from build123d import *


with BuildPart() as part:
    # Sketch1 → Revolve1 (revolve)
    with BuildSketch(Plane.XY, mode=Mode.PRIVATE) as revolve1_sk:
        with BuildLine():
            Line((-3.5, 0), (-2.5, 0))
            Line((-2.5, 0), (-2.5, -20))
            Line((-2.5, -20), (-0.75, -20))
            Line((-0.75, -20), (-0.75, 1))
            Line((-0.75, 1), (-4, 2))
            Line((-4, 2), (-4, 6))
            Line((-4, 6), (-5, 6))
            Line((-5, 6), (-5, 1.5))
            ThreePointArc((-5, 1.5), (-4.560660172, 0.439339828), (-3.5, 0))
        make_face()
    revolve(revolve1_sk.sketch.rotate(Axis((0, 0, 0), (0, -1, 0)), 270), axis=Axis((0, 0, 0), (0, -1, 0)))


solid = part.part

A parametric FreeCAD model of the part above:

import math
import FreeCAD as App
import Part
import Sketcher

V = App.Vector
Q = App.Units.Quantity

doc = App.newDocument("Part")
body = doc.addObject("PartDesign::Body", "Body")

# Sketch on XY plane
sketch1 = body.newObject("Sketcher::SketchObject", "Sketch")
sketch1.AttachmentSupport = (doc.getObject("XY_Plane"), [""])
sketch1.MapMode = "FlatFace"
sketch1.addGeometry([
    Part.LineSegment(V(-3.5, 0, 0), V(-2.5, 0, 0)),  # 0
    Part.LineSegment(V(-2.5, 0, 0), V(-2.5, -20, 0)),  # 1
    Part.LineSegment(V(-2.5, -20, 0), V(-0.8, -20, 0)),  # 2
    Part.LineSegment(V(-0.8, -20, 0), V(-0.8, 1, 0)),  # 3
    Part.LineSegment(V(-0.8, 1, 0), V(-4, 2, 0)),  # 4
    Part.LineSegment(V(-4, 2, 0), V(-4, 6, 0)),  # 5
    Part.LineSegment(V(-4, 6, 0), V(-5, 6, 0)),  # 6
    Part.LineSegment(V(-5, 6, 0), V(-5, 1.5, 0)),  # 7
    Part.ArcOfCircle(Part.Circle(V(-3.5, 1.5, 0), V(0, 0, 1), 1.5), math.radians(180), math.radians(270)),  # 8
], False)
sketch1.addConstraint([
    Sketcher.Constraint("Coincident", 0, 2, 1, 1),
    Sketcher.Constraint("Coincident", 1, 2, 2, 1),
    Sketcher.Constraint("Coincident", 2, 2, 3, 1),
    Sketcher.Constraint("Coincident", 3, 2, 4, 1),
    Sketcher.Constraint("Coincident", 4, 2, 5, 1),
    Sketcher.Constraint("Coincident", 5, 2, 6, 1),
    Sketcher.Constraint("Coincident", 6, 2, 7, 1),
    Sketcher.Constraint("Tangent", 7, 2, 8, 1),
    Sketcher.Constraint("Tangent", 8, 2, 0, 1),
    Sketcher.Constraint("Horizontal", 0),
    Sketcher.Constraint("Vertical", 1),
    Sketcher.Constraint("Horizontal", 2),
    Sketcher.Constraint("Vertical", 3),
    Sketcher.Constraint("Vertical", 5),
    Sketcher.Constraint("Horizontal", 6),
    Sketcher.Constraint("Vertical", 7),
    Sketcher.Constraint("PointOnObject", 0, 2, -1),
    Sketcher.Constraint("Equal", 0, 6),
    Sketcher.Constraint("Radius", 8, Q("1.5 mm")),
    Sketcher.Constraint("DistanceX", 0, 1, 0, 2, Q("1 mm")),
    Sketcher.Constraint("DistanceY", 1, 2, 1, 1, Q("20 mm")),
    Sketcher.Constraint("DistanceY", 3, 1, 3, 2, Q("21 mm")),
    Sketcher.Constraint("DistanceY", 5, 1, 5, 2, Q("4 mm")),
    Sketcher.Constraint("DistanceY", 7, 2, 7, 1, Q("4.5 mm")),
    Sketcher.Constraint("DistanceX", 4, 2, -1, 1, Q("4 mm")),
    Sketcher.Constraint("DistanceX", 2, 1, 2, 2, Q("1.75 mm")),
])
revolution = body.newObject("PartDesign::Revolution", "Revolution")
revolution.Profile = sketch1
revolution.ReferenceAxis = (sketch1, ["V_Axis"])
revolution.Angle = 360

doc.recompute()
